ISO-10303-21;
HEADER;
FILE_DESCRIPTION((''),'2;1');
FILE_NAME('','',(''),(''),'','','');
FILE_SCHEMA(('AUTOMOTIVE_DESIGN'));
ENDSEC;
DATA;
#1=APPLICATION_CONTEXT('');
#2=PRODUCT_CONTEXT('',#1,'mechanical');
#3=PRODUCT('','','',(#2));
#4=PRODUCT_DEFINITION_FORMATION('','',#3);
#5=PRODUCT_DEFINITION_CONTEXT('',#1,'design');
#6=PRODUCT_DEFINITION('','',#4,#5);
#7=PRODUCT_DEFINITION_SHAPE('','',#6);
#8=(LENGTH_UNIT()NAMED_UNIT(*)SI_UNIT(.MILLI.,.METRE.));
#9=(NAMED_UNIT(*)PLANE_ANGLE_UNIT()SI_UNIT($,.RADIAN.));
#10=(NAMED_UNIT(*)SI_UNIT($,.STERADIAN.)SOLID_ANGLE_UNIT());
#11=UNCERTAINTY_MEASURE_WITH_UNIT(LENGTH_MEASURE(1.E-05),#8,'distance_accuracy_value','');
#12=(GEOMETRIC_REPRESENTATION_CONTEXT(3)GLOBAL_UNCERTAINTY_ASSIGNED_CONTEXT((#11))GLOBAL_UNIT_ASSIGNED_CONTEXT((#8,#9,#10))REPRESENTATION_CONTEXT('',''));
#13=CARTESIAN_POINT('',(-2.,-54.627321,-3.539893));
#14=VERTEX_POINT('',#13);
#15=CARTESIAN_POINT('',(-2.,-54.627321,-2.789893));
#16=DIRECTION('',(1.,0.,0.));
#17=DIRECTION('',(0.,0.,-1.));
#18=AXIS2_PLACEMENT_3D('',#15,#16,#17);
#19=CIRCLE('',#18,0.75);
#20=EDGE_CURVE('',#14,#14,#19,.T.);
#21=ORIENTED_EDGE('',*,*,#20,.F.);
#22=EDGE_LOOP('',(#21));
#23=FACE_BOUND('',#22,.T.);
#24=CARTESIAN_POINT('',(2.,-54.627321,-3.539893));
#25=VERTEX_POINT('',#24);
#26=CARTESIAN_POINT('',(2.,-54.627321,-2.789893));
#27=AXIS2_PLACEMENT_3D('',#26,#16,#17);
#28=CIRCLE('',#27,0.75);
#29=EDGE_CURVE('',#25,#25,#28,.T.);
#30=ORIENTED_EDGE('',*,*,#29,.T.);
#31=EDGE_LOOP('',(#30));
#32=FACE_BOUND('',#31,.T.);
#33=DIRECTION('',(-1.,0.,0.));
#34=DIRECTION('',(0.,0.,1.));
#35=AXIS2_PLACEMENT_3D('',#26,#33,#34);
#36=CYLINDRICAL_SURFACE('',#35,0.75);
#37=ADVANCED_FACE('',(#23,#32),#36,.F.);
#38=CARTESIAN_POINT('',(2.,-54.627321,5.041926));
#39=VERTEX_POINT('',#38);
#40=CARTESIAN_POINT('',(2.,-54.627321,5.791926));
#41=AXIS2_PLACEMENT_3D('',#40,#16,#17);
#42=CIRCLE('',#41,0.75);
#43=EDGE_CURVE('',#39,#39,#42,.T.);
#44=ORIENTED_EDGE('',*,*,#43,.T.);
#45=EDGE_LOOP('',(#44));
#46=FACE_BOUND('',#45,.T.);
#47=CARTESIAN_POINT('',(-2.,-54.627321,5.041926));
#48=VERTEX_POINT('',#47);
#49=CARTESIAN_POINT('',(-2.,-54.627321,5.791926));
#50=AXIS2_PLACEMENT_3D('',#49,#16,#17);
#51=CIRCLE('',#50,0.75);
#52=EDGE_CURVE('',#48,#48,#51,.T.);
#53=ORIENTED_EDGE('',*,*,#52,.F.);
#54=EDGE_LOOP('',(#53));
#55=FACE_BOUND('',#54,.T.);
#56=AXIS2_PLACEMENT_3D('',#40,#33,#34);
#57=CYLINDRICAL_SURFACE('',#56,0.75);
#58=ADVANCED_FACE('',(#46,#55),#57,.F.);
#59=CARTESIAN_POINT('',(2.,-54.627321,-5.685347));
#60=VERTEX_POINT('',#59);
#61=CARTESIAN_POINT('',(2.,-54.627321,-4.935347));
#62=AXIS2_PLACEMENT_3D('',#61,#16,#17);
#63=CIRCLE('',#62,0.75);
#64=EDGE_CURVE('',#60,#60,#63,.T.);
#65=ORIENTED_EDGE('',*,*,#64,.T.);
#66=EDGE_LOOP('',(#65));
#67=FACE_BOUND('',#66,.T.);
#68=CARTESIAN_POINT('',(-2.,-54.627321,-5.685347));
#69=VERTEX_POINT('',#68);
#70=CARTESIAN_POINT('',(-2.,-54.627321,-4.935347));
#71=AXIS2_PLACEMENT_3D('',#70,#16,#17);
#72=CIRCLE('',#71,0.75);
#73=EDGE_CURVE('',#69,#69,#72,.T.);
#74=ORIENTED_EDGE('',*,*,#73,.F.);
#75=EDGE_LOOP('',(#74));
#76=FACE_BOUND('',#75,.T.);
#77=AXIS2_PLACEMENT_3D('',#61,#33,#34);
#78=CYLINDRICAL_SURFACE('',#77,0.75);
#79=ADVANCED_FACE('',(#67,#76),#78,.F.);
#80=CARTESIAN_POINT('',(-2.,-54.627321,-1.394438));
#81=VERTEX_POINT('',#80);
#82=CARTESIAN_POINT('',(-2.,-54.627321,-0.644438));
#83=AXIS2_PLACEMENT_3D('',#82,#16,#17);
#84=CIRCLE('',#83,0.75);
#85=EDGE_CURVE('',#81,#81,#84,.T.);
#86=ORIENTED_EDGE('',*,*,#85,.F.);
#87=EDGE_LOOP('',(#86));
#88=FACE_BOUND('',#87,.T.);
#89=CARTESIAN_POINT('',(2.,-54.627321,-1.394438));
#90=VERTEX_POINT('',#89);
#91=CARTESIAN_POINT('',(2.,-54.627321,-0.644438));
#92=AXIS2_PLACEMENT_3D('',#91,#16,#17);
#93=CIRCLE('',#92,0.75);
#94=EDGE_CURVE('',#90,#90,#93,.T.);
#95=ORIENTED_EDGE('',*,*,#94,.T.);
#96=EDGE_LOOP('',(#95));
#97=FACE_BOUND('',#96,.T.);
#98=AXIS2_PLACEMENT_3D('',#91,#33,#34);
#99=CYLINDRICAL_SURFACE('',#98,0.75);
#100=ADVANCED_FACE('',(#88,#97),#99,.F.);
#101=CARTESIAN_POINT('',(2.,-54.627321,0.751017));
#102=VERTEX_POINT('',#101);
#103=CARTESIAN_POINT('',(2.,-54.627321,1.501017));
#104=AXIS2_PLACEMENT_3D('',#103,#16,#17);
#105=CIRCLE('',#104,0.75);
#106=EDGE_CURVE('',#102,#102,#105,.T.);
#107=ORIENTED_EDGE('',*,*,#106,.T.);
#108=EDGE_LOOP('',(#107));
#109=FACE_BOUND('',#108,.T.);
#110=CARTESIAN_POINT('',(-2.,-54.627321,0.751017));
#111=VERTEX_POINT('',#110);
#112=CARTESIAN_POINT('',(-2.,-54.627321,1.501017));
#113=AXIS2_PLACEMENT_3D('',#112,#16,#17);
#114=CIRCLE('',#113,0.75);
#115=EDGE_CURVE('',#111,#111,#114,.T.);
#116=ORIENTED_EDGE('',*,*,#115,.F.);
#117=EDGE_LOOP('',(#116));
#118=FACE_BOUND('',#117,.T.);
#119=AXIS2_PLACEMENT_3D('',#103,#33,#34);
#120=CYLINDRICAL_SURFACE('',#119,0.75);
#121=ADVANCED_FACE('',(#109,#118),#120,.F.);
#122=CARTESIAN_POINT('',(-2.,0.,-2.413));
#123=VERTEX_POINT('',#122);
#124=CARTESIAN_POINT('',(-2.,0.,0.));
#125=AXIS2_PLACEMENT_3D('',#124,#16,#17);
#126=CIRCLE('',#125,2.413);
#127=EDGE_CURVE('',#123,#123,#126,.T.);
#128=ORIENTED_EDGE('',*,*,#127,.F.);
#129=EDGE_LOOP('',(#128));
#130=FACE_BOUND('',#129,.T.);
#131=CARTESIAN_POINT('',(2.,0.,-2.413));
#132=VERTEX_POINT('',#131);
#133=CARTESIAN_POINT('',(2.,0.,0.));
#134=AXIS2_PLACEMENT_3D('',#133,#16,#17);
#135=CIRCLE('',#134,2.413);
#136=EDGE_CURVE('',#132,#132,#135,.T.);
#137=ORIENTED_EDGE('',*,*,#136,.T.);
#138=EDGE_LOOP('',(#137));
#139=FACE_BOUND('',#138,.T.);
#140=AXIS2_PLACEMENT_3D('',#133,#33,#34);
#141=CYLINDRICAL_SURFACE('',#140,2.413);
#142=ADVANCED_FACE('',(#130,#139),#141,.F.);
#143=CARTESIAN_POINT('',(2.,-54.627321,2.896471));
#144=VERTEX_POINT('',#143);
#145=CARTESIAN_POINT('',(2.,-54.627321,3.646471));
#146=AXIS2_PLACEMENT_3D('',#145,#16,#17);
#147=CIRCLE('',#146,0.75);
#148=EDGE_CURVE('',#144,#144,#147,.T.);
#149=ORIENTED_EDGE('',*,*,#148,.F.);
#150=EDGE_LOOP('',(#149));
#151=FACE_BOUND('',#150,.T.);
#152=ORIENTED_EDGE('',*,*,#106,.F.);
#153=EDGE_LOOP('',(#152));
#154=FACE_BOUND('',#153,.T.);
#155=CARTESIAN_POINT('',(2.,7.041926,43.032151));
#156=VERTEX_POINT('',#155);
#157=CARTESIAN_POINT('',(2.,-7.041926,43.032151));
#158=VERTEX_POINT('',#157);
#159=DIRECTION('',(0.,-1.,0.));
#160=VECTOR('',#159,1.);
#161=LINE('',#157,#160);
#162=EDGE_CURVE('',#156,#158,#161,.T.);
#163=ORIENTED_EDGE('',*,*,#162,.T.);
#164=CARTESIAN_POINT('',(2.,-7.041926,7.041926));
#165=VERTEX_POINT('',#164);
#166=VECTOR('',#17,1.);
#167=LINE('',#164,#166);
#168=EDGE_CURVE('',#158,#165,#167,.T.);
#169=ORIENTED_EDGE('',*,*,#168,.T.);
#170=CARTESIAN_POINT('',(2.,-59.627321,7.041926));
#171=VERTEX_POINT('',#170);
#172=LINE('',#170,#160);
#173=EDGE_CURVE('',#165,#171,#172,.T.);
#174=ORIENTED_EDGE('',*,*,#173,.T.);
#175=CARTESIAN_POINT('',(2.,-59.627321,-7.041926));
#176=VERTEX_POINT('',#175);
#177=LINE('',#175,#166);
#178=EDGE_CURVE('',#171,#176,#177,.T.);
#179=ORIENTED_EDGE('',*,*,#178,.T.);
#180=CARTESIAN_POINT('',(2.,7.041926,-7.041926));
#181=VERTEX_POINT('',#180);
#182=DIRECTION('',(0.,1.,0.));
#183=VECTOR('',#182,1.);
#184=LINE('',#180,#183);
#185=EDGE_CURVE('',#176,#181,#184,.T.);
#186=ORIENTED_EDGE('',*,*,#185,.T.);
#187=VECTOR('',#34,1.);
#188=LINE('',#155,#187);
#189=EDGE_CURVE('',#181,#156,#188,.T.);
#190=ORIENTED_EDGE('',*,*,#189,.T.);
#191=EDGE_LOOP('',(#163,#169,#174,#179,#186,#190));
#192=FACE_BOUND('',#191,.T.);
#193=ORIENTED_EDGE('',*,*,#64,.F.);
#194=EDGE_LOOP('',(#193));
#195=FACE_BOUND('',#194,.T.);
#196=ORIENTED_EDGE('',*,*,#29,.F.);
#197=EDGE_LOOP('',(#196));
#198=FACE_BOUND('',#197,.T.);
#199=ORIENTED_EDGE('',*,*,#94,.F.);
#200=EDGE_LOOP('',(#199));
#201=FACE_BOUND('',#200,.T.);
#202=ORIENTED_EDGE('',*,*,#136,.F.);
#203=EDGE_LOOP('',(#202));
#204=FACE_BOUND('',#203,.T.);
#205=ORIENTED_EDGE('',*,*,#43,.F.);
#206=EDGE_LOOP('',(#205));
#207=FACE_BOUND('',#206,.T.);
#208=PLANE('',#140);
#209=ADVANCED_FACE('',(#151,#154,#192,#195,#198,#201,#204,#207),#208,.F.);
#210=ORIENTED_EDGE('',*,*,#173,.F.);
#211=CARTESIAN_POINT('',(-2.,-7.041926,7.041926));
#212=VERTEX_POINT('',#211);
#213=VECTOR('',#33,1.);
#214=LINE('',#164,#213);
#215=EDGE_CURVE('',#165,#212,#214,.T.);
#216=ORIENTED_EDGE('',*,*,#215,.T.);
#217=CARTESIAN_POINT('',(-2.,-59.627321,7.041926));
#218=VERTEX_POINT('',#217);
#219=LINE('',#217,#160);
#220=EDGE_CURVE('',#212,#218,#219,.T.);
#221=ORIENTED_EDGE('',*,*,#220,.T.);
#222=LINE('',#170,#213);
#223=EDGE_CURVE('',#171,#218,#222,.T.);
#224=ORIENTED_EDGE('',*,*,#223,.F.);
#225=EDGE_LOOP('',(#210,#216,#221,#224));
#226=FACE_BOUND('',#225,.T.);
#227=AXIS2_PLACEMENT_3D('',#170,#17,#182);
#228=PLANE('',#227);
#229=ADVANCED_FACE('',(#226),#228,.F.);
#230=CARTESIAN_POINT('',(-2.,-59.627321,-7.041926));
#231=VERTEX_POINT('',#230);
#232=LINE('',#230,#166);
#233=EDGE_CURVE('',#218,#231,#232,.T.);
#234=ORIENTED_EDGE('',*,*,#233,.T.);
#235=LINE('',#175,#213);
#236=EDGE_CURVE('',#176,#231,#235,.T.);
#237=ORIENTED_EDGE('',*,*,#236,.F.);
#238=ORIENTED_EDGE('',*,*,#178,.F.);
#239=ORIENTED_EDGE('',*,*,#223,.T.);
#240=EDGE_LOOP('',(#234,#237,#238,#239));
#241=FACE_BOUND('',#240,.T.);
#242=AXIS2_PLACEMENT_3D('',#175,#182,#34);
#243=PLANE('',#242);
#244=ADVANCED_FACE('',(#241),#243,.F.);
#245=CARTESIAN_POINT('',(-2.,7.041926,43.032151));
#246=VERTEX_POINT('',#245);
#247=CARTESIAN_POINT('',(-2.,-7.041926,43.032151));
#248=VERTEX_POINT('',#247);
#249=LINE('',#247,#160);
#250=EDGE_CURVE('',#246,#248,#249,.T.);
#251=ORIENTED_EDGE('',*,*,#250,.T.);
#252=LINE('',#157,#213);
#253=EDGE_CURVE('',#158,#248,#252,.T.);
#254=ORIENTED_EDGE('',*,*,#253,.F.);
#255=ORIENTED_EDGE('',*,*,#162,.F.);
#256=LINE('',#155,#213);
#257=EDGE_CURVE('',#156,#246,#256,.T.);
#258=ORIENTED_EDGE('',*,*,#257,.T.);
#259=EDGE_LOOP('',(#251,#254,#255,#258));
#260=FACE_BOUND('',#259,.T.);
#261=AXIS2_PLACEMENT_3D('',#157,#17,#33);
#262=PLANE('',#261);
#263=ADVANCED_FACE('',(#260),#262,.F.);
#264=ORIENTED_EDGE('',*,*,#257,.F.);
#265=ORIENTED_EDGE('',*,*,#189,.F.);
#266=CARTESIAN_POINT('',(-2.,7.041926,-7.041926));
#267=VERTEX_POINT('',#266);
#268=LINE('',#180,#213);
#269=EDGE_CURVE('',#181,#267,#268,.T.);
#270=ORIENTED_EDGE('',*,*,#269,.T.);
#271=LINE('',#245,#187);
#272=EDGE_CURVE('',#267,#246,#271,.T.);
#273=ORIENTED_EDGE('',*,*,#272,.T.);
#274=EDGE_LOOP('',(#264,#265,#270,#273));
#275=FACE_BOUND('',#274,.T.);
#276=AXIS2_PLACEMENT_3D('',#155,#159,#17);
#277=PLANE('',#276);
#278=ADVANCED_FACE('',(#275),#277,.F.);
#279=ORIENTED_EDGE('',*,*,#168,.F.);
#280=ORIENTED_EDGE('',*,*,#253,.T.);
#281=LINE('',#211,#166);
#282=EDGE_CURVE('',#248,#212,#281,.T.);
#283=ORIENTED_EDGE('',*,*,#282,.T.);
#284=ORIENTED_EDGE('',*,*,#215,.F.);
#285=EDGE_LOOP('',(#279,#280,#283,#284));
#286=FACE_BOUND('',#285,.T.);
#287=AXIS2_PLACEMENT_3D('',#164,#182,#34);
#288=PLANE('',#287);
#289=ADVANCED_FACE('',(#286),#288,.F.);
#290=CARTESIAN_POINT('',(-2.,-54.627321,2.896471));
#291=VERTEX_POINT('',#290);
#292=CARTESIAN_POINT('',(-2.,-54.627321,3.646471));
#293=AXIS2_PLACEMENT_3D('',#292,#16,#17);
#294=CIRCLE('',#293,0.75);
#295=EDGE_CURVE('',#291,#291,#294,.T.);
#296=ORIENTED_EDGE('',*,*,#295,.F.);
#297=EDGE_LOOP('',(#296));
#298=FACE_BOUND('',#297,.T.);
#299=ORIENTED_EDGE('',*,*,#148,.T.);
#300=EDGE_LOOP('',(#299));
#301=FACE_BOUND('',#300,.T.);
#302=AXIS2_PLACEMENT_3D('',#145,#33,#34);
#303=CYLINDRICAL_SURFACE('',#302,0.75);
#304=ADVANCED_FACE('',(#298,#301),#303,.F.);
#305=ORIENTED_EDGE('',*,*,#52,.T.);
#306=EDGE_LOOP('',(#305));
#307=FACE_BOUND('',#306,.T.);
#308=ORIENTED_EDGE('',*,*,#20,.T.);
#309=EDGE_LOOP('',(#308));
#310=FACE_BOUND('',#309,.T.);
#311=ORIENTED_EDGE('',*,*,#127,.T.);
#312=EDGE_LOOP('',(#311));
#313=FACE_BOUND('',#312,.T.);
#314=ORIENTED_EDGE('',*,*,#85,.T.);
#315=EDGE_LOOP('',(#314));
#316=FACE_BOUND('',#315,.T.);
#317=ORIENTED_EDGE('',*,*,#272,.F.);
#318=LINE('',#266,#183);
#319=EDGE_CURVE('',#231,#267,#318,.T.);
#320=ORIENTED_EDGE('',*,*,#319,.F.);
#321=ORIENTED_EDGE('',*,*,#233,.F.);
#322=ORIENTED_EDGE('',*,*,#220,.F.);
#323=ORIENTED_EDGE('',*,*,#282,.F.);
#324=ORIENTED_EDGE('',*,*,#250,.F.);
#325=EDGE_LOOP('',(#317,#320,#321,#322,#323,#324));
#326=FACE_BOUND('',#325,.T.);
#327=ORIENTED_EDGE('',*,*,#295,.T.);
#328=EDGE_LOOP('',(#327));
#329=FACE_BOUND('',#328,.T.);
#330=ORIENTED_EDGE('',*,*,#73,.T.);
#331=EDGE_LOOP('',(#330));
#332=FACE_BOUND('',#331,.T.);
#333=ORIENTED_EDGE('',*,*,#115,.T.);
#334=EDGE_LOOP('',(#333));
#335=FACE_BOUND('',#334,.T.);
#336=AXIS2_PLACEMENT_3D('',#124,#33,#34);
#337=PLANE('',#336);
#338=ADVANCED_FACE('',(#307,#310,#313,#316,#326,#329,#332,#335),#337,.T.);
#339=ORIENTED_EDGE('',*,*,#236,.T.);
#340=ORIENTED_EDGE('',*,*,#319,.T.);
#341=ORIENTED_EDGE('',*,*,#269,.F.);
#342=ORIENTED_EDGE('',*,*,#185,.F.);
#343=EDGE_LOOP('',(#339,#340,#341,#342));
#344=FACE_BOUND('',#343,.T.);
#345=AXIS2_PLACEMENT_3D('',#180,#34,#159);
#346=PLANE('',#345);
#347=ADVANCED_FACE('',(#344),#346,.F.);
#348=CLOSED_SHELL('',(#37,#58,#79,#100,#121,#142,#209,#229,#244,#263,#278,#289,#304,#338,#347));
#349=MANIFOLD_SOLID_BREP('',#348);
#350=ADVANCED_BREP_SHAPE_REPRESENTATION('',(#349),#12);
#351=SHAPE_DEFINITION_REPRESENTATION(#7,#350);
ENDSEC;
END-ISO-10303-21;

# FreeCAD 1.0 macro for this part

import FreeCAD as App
import Part
import Sketcher

doc = App.newDocument("Part")
body = doc.addObject("PartDesign::Body", "Body")

sketch1 = doc.addObject("Sketcher::SketchObject", "Sketch")
body.addObject(sketch1)
sketch1.AttachmentSupport = (doc.YZ_Plane, [""])
sketch1.MapMode = "FlatFace"
sketch1.addGeometry(Part.LineSegment(App.Vector(7.041926, -7.041926, 0), App.Vector(7.041926, 43.032151, 0)), False)
sketch1.addGeometry(Part.LineSegment(App.Vector(7.041926, 43.032151, 0), App.Vector(-7.041926, 43.032151, 0)), False)
sketch1.addGeometry(Part.LineSegment(App.Vector(-7.041926, 43.032151, 0), App.Vector(-7.041926, 7.041926, 0)), False)
sketch1.addGeometry(Part.LineSegment(App.Vector(-7.041926, 7.041926, 0), App.Vector(-59.627321, 7.041926, 0)), False)
sketch1.addGeometry(Part.LineSegment(App.Vector(-59.627321, 7.041926, 0), App.Vector(-59.627321, -7.041926, 0)), False)
sketch1.addGeometry(Part.LineSegment(App.Vector(-59.627321, -7.041926, 0), App.Vector(7.041926, -7.041926, 0)), False)
sketch1.addGeometry(Part.Circle(App.Vector(-54.627321, -4.935347, 0), App.Vector(0, 0, 1), 0.75), False)
sketch1.addGeometry(Part.Circle(App.Vector(-54.627321, -2.789893, 0), App.Vector(0, 0, 1), 0.75), False)
sketch1.addGeometry(Part.Circle(App.Vector(-54.627321, -0.644438, 0), App.Vector(0, 0, 1), 0.75), False)
sketch1.addGeometry(Part.Circle(App.Vector(-54.627321, 1.501017, 0), App.Vector(0, 0, 1), 0.75), False)
sketch1.addGeometry(Part.Circle(App.Vector(-54.627321, 3.646471, 0), App.Vector(0, 0, 1), 0.75), False)
sketch1.addGeometry(Part.Circle(App.Vector(-54.627321, 5.791926, 0), App.Vector(0, 0, 1), 0.75), False)
sketch1.addGeometry(Part.Circle(App.Vector(0, 0, 0), App.Vector(0, 0, 1), 2.413), False)
sketch1.addConstraint(Sketcher.Constraint("Coincident", 0, 2, 1, 1))
sketch1.addConstraint(Sketcher.Constraint("Coincident", 1, 2, 2, 1))
sketch1.addConstraint(Sketcher.Constraint("Coincident", 2, 2, 3, 1))
sketch1.addConstraint(Sketcher.Constraint("Coincident", 3, 2, 4, 1))
sketch1.addConstraint(Sketcher.Constraint("Coincident", 4, 2, 5, 1))
sketch1.addConstraint(Sketcher.Constraint("Coincident", 5, 2, 0, 1))
sketch1.addConstraint(Sketcher.Constraint("Vertical", 0))
sketch1.addConstraint(Sketcher.Constraint("Horizontal", 1))
sketch1.addConstraint(Sketcher.Constraint("Vertical", 2))
sketch1.addConstraint(Sketcher.Constraint("Horizontal", 3))
sketch1.addConstraint(Sketcher.Constraint("Vertical", 4))
sketch1.addConstraint(Sketcher.Constraint("Horizontal", 5))
sketch1.addConstraint(Sketcher.Constraint("Coincident", 12, 3, -1, 1))
sketch1.addConstraint(Sketcher.Constraint("Equal", 6, 7))
sketch1.addConstraint(Sketcher.Constraint("Equal", 7, 8))
sketch1.addConstraint(Sketcher.Constraint("Equal", 8, 9))
sketch1.addConstraint(Sketcher.Constraint("Equal", 9, 10))
sketch1.addConstraint(Sketcher.Constraint("Equal", 10, 11))
sketch1.addConstraint(Sketcher.Constraint("Symmetric", 2, 2, 5, 2, -1, 1))
sketch1.addConstraint(Sketcher.Constraint("Vertical", 6, 3, 7, 3))
sketch1.addConstraint(Sketcher.Constraint("Vertical", 7, 3, 8, 3))
sketch1.addConstraint(Sketcher.Constraint("Vertical", 8, 3, 9, 3))
sketch1.addConstraint(Sketcher.Constraint("Vertical", 9, 3, 10, 3))
sketch1.addConstraint(Sketcher.Constraint("Vertical", 10, 3, 11, 3))
sketch1.addConstraint(Sketcher.Constraint("Equal", 1, 4))
sketch1.addConstraint(Sketcher.Constraint("Diameter", 6, 1.5))
sketch1.addConstraint(Sketcher.Constraint("Diameter", 12, 4.826))
sketch1.addConstraint(Sketcher.Constraint("DistanceX", 3, 2, 11, 3, 5.0))
sketch1.addConstraint(Sketcher.Constraint("DistanceY", 11, 3, 2, 2, 1.25))
sketch1.addConstraint(Sketcher.Constraint("DistanceX", 1, 2, 1, 1, 14.083851))
sketch1.addConstraint(Sketcher.Constraint("DistanceX", 3, 2, 3, 1, 52.585396))
sketch1.addConstraint(Sketcher.Constraint("DistanceY", 0, 1, 0, 2, 50.074077))
sketch1.addConstraint(Sketcher.Constraint("DistanceY", 8, 3, -1, 1, 0.644438))
sketch1.addConstraint(Sketcher.Constraint("DistanceY", -1, 1, 10, 3, 3.646471))
sketch1.addConstraint(Sketcher.Constraint("DistanceY", 6, 3, 8, 3, 4.290909))
sketch1.addConstraint(Sketcher.Constraint("DistanceY", 7, 3, 9, 3, 4.290909))
sketch1.addConstraint(Sketcher.Constraint("DistanceY", 9, 3, 11, 3, 4.290909))
pad1 = doc.addObject("PartDesign::Pad", "Pad")
body.addObject(pad1)
pad1.Profile = sketch1
pad1.Length = 4
pad1.Midplane = True

doc.recompute()
